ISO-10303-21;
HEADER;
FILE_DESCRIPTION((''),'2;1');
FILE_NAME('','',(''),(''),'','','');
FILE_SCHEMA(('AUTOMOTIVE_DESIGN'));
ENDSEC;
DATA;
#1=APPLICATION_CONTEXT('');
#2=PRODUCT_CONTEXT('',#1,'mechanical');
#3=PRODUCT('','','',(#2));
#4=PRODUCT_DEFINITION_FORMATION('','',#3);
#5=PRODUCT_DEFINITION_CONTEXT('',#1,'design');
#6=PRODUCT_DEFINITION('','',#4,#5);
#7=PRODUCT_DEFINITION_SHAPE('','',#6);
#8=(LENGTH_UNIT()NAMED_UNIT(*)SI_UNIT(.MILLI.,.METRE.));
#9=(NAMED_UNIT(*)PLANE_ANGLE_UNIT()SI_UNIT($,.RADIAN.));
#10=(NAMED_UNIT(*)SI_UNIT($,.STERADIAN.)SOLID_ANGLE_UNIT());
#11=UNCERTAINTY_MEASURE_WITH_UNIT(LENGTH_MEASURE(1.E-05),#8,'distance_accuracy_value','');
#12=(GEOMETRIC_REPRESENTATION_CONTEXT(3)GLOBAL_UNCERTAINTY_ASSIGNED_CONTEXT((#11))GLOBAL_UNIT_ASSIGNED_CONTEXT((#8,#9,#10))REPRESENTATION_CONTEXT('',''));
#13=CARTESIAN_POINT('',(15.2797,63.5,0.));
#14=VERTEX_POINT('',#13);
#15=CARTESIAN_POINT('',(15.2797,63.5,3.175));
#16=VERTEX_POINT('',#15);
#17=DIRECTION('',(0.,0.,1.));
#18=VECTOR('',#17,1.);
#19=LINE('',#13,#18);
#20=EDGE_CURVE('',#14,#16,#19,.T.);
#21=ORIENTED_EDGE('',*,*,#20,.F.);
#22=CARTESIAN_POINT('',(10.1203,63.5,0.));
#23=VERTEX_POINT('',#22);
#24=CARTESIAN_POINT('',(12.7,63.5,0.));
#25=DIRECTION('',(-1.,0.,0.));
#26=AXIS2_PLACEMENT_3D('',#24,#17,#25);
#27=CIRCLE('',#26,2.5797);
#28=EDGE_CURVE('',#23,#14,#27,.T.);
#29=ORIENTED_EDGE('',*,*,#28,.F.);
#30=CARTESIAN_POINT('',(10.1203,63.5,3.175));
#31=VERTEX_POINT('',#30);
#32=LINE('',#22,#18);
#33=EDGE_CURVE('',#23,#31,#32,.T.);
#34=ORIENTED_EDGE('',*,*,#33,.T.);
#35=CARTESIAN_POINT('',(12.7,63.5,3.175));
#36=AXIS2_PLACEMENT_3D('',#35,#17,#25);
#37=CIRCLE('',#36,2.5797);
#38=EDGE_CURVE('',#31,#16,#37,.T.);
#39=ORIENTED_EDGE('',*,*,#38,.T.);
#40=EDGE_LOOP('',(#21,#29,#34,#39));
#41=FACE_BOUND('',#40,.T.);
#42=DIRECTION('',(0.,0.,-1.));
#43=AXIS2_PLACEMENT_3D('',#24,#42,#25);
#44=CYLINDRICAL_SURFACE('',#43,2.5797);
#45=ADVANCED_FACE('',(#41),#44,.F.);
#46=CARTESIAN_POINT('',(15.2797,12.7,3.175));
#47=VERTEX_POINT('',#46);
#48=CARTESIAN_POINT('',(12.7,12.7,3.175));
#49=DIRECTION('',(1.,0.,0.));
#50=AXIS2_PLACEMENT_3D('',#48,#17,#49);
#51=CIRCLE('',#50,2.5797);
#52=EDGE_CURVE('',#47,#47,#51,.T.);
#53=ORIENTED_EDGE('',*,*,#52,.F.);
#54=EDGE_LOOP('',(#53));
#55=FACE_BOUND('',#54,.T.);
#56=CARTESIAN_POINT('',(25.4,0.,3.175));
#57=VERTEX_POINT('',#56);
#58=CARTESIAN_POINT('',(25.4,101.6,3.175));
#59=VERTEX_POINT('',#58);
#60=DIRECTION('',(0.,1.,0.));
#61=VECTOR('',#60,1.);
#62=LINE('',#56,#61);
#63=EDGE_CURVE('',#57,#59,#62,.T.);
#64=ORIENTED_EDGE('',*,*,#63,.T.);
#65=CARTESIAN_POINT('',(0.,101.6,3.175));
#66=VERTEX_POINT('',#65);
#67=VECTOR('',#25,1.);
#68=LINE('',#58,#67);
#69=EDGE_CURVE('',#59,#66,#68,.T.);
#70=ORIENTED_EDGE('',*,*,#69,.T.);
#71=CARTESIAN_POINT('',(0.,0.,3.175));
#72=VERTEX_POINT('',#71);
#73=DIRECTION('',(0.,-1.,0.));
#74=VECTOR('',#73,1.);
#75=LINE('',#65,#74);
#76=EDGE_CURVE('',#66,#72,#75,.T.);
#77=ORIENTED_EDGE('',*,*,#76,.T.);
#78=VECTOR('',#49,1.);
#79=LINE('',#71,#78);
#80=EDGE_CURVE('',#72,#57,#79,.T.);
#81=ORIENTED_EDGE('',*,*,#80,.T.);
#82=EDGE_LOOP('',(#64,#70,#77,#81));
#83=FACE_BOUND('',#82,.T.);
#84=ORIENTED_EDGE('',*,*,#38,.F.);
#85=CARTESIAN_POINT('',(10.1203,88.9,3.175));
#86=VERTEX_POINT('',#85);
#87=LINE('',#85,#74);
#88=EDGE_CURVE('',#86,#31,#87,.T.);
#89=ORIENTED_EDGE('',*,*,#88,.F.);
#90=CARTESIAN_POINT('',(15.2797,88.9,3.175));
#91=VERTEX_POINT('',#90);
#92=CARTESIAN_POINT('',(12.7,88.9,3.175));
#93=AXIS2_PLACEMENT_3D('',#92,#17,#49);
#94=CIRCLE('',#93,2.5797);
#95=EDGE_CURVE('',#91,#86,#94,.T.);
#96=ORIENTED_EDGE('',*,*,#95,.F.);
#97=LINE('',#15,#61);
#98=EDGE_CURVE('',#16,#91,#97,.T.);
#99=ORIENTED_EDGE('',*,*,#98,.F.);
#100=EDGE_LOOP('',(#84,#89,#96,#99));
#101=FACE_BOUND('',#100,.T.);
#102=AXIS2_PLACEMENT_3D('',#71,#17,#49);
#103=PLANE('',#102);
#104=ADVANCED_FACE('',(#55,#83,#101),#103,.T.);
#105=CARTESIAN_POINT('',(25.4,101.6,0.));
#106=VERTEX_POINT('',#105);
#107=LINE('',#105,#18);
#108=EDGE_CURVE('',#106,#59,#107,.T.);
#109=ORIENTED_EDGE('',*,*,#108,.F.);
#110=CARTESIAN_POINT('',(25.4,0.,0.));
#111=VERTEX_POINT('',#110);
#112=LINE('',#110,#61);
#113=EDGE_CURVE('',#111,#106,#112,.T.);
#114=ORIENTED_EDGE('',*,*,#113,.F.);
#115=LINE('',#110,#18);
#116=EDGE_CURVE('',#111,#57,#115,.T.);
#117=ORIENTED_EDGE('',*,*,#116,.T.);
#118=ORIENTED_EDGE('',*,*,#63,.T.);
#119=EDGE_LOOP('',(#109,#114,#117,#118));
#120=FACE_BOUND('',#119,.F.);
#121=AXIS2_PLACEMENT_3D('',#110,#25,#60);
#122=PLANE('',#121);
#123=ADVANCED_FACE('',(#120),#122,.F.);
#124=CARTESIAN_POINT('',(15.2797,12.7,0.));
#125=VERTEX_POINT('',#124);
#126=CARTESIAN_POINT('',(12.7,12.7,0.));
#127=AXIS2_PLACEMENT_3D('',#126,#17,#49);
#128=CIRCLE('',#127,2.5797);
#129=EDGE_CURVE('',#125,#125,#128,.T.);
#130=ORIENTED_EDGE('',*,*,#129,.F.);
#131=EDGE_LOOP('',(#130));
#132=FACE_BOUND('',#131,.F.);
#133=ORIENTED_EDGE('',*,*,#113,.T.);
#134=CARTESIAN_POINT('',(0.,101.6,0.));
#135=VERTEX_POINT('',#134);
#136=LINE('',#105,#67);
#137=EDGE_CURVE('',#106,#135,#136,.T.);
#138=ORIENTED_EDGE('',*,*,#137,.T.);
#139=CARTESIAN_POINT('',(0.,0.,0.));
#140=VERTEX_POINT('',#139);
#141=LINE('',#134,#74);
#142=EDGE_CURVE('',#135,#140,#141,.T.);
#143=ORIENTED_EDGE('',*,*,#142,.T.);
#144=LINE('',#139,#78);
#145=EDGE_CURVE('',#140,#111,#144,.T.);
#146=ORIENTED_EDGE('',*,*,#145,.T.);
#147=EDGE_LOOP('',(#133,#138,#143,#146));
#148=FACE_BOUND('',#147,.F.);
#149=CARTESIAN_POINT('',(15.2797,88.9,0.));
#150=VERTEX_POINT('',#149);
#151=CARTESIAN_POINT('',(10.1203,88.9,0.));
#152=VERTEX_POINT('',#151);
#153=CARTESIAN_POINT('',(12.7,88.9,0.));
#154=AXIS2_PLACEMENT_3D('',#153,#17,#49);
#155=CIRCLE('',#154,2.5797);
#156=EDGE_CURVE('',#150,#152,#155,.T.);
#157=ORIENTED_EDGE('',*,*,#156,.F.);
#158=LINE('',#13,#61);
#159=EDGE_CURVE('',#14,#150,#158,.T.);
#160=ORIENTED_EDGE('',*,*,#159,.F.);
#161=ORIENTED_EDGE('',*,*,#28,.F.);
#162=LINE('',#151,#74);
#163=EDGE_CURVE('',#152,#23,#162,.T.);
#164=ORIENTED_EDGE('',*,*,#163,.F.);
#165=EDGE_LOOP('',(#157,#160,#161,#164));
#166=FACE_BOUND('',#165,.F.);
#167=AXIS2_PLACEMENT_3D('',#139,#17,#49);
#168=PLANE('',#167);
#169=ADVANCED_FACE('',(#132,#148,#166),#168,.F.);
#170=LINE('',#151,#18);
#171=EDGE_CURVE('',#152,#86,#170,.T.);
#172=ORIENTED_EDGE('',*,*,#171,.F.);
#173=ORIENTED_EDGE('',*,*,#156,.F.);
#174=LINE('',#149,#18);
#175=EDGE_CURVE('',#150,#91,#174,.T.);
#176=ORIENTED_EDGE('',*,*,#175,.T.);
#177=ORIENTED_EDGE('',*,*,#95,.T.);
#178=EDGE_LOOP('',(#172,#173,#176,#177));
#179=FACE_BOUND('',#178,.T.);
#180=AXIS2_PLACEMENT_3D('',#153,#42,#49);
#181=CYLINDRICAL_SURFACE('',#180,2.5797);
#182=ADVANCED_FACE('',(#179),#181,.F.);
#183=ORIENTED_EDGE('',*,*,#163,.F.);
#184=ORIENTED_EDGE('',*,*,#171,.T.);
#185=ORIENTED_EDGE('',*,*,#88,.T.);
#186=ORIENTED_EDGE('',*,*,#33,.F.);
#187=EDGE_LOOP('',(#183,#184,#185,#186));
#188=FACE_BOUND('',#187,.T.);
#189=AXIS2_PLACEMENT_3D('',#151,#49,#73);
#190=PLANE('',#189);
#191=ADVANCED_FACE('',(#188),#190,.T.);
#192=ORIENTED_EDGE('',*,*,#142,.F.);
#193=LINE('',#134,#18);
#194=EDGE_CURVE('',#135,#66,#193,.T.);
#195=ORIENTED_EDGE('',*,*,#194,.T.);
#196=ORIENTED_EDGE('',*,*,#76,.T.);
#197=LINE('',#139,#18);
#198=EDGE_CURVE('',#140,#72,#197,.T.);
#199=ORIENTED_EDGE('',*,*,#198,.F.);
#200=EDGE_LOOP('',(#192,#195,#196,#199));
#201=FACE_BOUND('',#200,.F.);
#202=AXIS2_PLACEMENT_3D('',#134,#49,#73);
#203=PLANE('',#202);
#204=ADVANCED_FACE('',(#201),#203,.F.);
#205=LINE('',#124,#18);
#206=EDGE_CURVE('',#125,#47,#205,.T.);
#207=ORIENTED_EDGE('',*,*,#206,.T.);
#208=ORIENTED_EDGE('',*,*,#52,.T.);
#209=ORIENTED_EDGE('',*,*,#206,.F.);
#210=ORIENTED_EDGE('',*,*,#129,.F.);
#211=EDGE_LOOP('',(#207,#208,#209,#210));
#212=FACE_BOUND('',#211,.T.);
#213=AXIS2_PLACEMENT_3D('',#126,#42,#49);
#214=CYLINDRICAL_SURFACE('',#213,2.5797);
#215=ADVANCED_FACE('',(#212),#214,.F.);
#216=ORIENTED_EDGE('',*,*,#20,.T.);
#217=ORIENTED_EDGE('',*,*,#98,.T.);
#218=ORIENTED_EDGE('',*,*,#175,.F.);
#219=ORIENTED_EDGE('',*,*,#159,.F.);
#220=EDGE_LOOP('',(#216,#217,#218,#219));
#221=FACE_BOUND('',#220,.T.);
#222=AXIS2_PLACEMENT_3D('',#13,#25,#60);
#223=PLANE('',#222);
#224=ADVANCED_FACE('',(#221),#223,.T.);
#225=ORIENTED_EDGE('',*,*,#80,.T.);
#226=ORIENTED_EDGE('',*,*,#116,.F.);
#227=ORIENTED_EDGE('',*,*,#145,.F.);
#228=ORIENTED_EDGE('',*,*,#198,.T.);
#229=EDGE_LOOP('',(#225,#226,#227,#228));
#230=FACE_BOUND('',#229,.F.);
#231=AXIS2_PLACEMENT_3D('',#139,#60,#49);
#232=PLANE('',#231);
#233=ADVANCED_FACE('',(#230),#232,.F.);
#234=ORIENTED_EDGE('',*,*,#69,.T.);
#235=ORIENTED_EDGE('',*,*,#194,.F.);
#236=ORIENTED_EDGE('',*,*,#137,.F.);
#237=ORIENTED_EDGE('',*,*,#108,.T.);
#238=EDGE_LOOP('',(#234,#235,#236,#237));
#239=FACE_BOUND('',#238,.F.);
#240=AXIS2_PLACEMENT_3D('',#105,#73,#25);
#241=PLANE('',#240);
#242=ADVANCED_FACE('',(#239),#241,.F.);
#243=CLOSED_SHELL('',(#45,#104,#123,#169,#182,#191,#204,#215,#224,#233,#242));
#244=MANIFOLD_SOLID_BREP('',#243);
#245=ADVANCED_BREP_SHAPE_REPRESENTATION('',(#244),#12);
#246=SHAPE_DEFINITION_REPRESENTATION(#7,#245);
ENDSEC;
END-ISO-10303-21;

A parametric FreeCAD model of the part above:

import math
import FreeCAD as App
import Part
import Sketcher
Q = App.Units.Quantity


def add_polygon(sketch, points):
    """Adds a closed chain of lines whose ends are joined by coincident constraints."""
    first, n = sketch.GeometryCount, len(points)
    for a, b in zip(points, points[1:] + points[:1]):
        sketch.addGeometry(Part.LineSegment(App.Vector(*a, 0), App.Vector(*b, 0)), False)
    for i in range(n):
        sketch.addConstraint(Sketcher.Constraint("Coincident", first + i, 2, first + (i + 1) % n, 1))

doc = App.newDocument("Part")
body = doc.addObject("PartDesign::Body", "Body")

# Sketch on XY plane
sketch1 = body.newObject("Sketcher::SketchObject", "Sketch")
sketch1.AttachmentSupport = (doc.getObject("XY_Plane"), [""])
sketch1.MapMode = "FlatFace"
add_polygon(sketch1, [(0, 101.6), (0, 0), (25.4, 0), (25.4, 101.6)])  # lines 0-3
sketch1.addGeometry(Part.Circle(App.Vector(12.7, 12.7, 0), App.Vector(0, 0, 1), 2.5797), False)  # 4
sketch1.addGeometry(Part.LineSegment(App.Vector(10.1203, 63.5, 0), App.Vector(10.1203, 88.9, 0)), False)  # 5
sketch1.addGeometry(Part.ArcOfCircle(Part.Circle(App.Vector(12.7, 88.9, 0), App.Vector(0, 0, 1), 2.5797), math.radians(0), math.radians(180)), False)  # 6
sketch1.addGeometry(Part.LineSegment(App.Vector(15.2797, 88.9, 0), App.Vector(15.2797, 63.5, 0)), False)  # 7
sketch1.addGeometry(Part.ArcOfCircle(Part.Circle(App.Vector(12.7, 63.5, 0), App.Vector(0, 0, 1), 2.5797), math.radians(180), math.radians(360)), False)  # 8
sketch1.addConstraint(Sketcher.Constraint("Tangent", 5, 2, 6, 2))
sketch1.addConstraint(Sketcher.Constraint("Tangent", 6, 1, 7, 1))
sketch1.addConstraint(Sketcher.Constraint("Tangent", 7, 2, 8, 2))
sketch1.addConstraint(Sketcher.Constraint("Tangent", 8, 1, 5, 1))
sketch1.addConstraint(Sketcher.Constraint("Vertical", 0))
sketch1.addConstraint(Sketcher.Constraint("Horizontal", 1))
sketch1.addConstraint(Sketcher.Constraint("Vertical", 2))
sketch1.addConstraint(Sketcher.Constraint("Horizontal", 3))
sketch1.addConstraint(Sketcher.Constraint("Vertical", 5))
sketch1.addConstraint(Sketcher.Constraint("Vertical", 7))
sketch1.addConstraint(Sketcher.Constraint("Coincident", 0, 2, -1, 1))
sketch1.addConstraint(Sketcher.Constraint("Equal", 4, 6))
sketch1.addConstraint(Sketcher.Constraint("Vertical", 4, 3, 6, 3))
sketch1.addConstraint(Sketcher.Constraint("Equal", 3, 5))
sketch1.addConstraint(Sketcher.Constraint("DistanceX", 1, 1, 1, 2, Q("1 in")))
sketch1.addConstraint(Sketcher.Constraint("DistanceY", 0, 2, 0, 1, Q("4 in")))
sketch1.addConstraint(Sketcher.Constraint("DistanceX", -1, 1, 4, 3, Q("0.5 in")))
sketch1.addConstraint(Sketcher.Constraint("DistanceY", -1, 1, 4, 3, Q("0.5 in")))
sketch1.addConstraint(Sketcher.Constraint("DistanceY", 6, 3, 2, 2, Q("0.5 in")))
sketch1.addConstraint(Sketcher.Constraint("Diameter", 4, Q("0.203126 in")))
pad1 = body.newObject("PartDesign::Pad", "Pad")
pad1.Profile = sketch1
pad1.Length = Q("0.125 in")

doc.recompute()
